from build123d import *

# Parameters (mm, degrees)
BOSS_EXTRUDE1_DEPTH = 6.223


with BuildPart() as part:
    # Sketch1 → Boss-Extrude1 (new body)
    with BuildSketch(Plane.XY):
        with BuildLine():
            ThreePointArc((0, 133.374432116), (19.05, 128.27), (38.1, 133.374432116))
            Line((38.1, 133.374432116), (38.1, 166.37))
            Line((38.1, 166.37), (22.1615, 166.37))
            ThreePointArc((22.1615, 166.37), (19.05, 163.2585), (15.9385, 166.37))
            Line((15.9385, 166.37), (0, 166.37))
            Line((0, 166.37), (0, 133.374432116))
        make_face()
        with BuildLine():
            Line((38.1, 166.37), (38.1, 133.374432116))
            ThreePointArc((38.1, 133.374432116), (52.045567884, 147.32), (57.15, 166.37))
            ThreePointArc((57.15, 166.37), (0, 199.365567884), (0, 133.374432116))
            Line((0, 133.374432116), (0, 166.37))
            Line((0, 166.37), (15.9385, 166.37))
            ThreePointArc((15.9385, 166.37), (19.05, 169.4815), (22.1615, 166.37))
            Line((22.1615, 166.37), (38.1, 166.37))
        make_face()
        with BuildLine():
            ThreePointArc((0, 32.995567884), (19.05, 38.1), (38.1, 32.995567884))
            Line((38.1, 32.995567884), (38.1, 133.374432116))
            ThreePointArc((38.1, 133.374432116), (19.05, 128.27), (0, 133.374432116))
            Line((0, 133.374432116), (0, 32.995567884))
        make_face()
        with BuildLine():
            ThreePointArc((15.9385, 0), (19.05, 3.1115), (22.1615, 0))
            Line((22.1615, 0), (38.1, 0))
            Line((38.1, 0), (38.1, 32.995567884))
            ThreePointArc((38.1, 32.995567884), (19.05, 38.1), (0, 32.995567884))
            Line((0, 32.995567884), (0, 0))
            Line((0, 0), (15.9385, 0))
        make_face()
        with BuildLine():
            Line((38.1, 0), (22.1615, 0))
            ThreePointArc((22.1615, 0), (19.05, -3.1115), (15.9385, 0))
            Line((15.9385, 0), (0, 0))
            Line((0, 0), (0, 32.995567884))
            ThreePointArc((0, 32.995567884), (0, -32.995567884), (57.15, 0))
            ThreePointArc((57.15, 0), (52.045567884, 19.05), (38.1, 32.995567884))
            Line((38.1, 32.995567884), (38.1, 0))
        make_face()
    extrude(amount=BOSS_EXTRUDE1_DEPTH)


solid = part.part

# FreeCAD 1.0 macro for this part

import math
import FreeCAD as App
import Part
import Sketcher
from FreeCAD import Vector
Q = App.Units.Quantity

doc = App.newDocument("Part")
body = doc.addObject("PartDesign::Body", "Body")

sketch1 = body.newObject("Sketcher::SketchObject", "Sketch")
sketch1.AttachmentSupport = (doc.getObject("XY_Plane"), [""])
sketch1.MapMode = "FlatFace"
sketch1.addGeometry([
    Part.LineSegment(Vector(38.1, 33, 0), Vector(38.1, 133.4, 0)),
    Part.ArcOfCircle(Part.Circle(Vector(19.1, 166.4, 0), Vector(0, 0, 1), 38.1), math.radians(-60), math.radians(0)),
    Part.ArcOfCircle(Part.Circle(Vector(19.1, 166.4, 0), Vector(0, 0, 1), 38.1), math.radians(0), math.radians(240)),
    Part.LineSegment(Vector(0, 133.4, 0), Vector(0, 33, 0)),
    Part.ArcOfCircle(Part.Circle(Vector(19.1, 0, 0), Vector(0, 0, 1), 38.1), math.radians(120), math.radians(360)),
    Part.ArcOfCircle(Part.Circle(Vector(19.1, 0, 0), Vector(0, 0, 1), 38.1), math.radians(0), math.radians(60)),
    Part.Circle(Vector(19.1, 0, 0), Vector(0, 0, 1), 3.1),
    Part.Circle(Vector(19.1, 166.4, 0), Vector(0, 0, 1), 3.1),
], False)
sketch1.addConstraint([
    Sketcher.Constraint("Coincident", 0, 2, 1, 1),
    Sketcher.Constraint("Tangent", 1, 2, 2, 1),
    Sketcher.Constraint("Coincident", 2, 2, 3, 1),
    Sketcher.Constraint("Coincident", 3, 2, 4, 1),
    Sketcher.Constraint("Tangent", 4, 2, 5, 1),
    Sketcher.Constraint("Coincident", 5, 2, 0, 1),
    Sketcher.Constraint("Vertical", 0),
    Sketcher.Constraint("Vertical", 3),
    Sketcher.Constraint("Coincident", 6, 3, 4, 3),
    Sketcher.Constraint("Coincident", 7, 3, 1, 3),
    Sketcher.Constraint("Equal", 1, 2),
    Sketcher.Constraint("Equal", 2, 4),
    Sketcher.Constraint("Equal", 4, 5),
    Sketcher.Constraint("Equal", 6, 7),
    Sketcher.Constraint("PointOnObject", 4, 3, -1),
    Sketcher.Constraint("PointOnObject", 2, 2, -2),
    Sketcher.Constraint("PointOnObject", 4, 2, -1),
    Sketcher.Constraint("Horizontal", 7, 3, 1, 2),
    Sketcher.Constraint("Horizontal", 0, 2, 2, 2),
    Sketcher.Constraint("Horizontal", 3, 2, 5, 2),
    Sketcher.Constraint("Radius", 1, Q("1.5 in")),
    Sketcher.Constraint("Diameter", 6, Q("0.245 in")),
    Sketcher.Constraint("DistanceX", -1, 1, 0, 2, Q("1.5 in")),
    Sketcher.Constraint("DistanceY", -1, 1, 1, 3, Q("6.55 in")),
])
pad1 = body.newObject("PartDesign::Pad", "Pad")
pad1.Profile = sketch1
pad1.Length = Q("0.245 in")

doc.recompute()
